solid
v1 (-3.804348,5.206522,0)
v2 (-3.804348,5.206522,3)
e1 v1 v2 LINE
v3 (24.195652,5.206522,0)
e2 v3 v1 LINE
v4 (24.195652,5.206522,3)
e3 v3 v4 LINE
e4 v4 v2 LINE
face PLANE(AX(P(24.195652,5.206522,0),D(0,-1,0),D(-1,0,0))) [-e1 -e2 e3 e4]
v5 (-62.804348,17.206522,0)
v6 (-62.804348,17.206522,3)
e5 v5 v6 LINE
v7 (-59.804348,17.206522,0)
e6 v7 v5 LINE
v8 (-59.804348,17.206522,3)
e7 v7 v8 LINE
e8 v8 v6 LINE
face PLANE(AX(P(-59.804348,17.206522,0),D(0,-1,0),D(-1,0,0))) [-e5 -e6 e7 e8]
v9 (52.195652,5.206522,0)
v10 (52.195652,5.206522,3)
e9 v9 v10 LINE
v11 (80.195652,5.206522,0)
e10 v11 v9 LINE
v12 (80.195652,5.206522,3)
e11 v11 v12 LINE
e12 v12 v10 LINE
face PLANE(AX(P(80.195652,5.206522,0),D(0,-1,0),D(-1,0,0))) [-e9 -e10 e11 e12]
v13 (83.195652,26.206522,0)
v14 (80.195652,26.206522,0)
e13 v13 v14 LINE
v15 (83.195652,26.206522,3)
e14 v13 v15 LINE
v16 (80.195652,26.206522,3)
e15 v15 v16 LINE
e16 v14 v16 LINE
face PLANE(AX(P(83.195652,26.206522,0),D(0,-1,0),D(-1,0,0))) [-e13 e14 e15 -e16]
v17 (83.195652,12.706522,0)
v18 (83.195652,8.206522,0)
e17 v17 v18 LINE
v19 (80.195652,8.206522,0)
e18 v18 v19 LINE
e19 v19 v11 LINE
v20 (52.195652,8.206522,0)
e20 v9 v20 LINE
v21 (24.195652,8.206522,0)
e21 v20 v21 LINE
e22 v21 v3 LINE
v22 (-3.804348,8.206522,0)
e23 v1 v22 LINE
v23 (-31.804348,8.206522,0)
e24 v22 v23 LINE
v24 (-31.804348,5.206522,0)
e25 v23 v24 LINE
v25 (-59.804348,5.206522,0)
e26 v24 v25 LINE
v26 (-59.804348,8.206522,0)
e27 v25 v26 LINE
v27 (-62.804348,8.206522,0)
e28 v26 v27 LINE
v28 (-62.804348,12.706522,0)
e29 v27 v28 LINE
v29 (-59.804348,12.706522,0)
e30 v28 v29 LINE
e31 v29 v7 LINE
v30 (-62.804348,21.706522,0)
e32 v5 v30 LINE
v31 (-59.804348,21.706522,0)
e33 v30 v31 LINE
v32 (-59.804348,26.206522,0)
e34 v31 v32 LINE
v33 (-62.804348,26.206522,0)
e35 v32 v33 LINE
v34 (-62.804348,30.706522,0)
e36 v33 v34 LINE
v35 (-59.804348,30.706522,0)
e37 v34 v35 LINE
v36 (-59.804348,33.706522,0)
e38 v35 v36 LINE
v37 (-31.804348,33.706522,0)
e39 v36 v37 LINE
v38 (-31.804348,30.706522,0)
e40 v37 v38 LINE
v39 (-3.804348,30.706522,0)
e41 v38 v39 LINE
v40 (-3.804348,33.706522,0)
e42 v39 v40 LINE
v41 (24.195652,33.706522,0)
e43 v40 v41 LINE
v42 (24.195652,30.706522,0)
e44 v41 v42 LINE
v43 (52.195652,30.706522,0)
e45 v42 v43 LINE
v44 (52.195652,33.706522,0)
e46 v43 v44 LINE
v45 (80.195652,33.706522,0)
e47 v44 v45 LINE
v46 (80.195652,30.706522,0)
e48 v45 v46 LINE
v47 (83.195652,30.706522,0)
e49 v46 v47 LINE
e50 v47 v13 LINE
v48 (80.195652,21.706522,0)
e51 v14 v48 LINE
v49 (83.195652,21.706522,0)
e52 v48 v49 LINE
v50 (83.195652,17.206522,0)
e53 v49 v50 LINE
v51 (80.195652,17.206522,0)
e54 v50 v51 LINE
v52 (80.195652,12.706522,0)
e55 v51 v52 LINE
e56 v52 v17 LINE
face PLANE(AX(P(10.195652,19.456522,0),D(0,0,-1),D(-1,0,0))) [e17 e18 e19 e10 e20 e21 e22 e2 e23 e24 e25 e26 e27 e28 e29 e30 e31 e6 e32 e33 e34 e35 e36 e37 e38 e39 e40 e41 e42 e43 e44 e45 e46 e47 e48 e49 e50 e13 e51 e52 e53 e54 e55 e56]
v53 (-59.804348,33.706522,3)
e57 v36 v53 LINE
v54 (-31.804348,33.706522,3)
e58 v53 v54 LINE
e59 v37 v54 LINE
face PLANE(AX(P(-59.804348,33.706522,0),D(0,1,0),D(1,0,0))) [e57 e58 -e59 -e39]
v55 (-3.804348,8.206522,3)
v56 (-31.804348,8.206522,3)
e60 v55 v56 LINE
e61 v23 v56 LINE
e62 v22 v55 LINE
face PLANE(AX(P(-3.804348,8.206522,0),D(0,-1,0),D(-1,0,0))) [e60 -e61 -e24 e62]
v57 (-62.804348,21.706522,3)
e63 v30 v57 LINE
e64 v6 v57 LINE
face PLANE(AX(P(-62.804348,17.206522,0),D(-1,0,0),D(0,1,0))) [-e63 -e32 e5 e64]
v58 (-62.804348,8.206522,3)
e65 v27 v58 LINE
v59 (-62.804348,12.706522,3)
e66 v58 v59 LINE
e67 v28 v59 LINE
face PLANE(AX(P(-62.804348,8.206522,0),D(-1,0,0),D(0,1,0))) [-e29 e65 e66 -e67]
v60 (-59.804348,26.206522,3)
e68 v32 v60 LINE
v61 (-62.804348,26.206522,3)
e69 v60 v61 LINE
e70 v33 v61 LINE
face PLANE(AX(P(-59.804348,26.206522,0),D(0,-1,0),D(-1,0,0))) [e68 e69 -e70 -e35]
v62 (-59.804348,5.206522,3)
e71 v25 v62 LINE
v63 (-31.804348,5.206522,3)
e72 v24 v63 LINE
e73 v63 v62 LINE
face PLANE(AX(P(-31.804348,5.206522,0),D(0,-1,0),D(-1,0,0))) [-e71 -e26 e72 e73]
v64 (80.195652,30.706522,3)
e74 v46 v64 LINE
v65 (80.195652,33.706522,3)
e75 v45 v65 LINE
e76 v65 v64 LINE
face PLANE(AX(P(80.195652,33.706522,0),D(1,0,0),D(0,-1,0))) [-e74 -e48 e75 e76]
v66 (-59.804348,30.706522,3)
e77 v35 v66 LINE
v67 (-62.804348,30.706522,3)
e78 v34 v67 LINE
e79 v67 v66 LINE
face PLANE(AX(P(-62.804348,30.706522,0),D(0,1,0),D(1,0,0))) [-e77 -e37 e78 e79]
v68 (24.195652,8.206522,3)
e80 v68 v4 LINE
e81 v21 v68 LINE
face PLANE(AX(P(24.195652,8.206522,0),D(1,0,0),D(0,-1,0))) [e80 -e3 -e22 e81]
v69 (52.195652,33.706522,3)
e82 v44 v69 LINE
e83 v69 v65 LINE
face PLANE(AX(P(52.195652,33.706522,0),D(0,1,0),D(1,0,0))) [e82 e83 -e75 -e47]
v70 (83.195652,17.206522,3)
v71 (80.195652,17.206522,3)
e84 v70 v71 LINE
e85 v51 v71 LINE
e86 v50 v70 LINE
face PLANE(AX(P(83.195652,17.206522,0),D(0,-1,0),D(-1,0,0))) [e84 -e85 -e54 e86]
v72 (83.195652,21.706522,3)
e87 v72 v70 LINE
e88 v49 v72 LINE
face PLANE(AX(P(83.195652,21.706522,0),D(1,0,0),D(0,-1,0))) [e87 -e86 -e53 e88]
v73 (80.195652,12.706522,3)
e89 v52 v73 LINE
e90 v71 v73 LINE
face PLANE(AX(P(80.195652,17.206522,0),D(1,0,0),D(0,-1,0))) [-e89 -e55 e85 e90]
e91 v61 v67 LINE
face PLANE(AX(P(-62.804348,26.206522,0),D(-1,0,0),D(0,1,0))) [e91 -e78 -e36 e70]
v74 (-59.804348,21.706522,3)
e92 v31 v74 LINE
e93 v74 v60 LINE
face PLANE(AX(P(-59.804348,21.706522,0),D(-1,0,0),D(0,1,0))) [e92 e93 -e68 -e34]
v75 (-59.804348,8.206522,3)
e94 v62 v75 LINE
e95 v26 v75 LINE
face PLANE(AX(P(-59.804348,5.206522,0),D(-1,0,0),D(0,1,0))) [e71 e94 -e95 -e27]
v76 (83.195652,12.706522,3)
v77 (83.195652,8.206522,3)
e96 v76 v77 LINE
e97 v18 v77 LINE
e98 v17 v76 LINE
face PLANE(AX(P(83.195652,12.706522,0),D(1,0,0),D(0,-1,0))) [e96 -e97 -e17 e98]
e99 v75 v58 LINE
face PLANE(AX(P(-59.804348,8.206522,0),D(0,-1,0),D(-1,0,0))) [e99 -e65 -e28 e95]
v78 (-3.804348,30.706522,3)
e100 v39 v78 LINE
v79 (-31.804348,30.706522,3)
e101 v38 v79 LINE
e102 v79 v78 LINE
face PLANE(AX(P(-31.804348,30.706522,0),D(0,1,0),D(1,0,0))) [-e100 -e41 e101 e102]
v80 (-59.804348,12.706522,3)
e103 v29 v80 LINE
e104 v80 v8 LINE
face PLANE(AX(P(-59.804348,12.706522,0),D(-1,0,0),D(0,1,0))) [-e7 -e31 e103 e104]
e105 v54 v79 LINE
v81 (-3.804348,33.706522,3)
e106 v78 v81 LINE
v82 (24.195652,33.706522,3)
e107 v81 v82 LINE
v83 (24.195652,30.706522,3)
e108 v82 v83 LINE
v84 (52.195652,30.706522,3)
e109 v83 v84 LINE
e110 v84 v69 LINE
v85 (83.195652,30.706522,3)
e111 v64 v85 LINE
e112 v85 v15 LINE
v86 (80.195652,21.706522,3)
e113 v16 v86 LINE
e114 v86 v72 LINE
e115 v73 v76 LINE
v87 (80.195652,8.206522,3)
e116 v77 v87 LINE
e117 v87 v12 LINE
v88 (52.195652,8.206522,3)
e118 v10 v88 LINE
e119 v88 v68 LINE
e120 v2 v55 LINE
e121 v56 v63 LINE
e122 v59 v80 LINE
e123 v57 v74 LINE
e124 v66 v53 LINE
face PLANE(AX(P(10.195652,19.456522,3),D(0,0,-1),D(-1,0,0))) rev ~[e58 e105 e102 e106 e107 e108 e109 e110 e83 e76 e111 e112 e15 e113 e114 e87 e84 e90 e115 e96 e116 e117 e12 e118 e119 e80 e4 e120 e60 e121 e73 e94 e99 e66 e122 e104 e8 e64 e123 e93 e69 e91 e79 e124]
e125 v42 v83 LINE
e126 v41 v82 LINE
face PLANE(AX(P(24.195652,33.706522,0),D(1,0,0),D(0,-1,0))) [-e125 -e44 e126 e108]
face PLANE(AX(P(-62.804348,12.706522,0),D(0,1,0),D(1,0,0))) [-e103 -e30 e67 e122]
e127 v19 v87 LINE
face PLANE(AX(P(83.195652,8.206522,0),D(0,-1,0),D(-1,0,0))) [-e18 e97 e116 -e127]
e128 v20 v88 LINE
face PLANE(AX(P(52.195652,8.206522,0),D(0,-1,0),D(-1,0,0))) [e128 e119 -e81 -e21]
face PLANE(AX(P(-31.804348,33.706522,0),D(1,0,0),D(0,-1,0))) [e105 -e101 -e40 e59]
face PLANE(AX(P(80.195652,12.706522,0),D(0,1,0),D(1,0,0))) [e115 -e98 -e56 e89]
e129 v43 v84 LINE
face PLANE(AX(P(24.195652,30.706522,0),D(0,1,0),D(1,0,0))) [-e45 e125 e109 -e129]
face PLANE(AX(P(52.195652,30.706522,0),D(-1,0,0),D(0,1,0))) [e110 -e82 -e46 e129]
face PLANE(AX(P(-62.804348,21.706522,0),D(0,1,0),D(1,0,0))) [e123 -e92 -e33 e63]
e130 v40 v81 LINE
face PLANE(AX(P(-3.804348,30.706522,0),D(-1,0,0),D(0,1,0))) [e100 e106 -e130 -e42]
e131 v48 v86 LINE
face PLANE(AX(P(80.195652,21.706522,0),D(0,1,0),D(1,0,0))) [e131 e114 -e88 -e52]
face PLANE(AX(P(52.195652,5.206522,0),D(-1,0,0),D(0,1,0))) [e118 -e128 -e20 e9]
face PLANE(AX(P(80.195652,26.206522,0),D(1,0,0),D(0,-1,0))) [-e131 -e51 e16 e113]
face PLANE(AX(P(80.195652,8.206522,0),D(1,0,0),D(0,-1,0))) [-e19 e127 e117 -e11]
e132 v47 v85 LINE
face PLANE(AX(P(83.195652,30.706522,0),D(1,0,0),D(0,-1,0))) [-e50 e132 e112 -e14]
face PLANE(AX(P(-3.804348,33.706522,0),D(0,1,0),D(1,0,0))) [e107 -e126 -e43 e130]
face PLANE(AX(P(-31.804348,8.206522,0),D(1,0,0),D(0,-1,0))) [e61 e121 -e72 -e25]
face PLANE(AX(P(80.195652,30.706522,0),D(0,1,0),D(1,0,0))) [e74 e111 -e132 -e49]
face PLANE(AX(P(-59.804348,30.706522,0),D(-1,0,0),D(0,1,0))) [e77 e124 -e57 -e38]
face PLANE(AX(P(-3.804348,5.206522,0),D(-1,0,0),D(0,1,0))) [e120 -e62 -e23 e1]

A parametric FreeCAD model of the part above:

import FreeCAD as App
import Part
import Sketcher


def add_polygon(sketch, points):
    """Adds a closed chain of lines whose ends are joined by coincident constraints."""
    first, n = sketch.GeometryCount, len(points)
    for a, b in zip(points, points[1:] + points[:1]):
        sketch.addGeometry(Part.LineSegment(App.Vector(*a, 0), App.Vector(*b, 0)), False)
    for i in range(n):
        sketch.addConstraint(Sketcher.Constraint("Coincident", first + i, 2, first + (i + 1) % n, 1))

doc = App.newDocument("Part")
params = doc.addObject("Spreadsheet::Sheet", "Params")
for row, (alias, value) in enumerate([
    ("sketch1_width", "3 mm"),
    ("sketch1_width2", "28 mm"),
    ("sketch1_height", "4.5 mm"),
    ("pad1_length", "3 mm"),
], start=1):
    params.set(f"A{row}", alias)
    params.set(f"B{row}", "=" + value)
    params.setAlias(f"B{row}", alias)

body = doc.addObject("PartDesign::Body", "Body")

# Sketch on XY plane
sketch1 = body.newObject("Sketcher::SketchObject", "Sketch")
sketch1.AttachmentSupport = (doc.getObject("XY_Plane"), [""])
sketch1.MapMode = "FlatFace"
add_polygon(sketch1, [(-59.8, 33.7), (-59.8, 30.7), (-62.8, 30.7), (-62.8, 26.2), (-59.8, 26.2), (-59.8, 21.7), (-62.8, 21.7), (-62.8, 17.2), (-59.8, 17.2), (-59.8, 12.7), (-62.8, 12.7), (-62.8, 8.2), (-59.8, 8.2), (-59.8, 5.2), (-31.8, 5.2), (-31.8, 8.2), (-3.8, 8.2), (-3.8, 5.2), (24.2, 5.2), (24.2, 8.2), (52.2, 8.2), (52.2, 5.2), (80.2, 5.2), (80.2, 8.2), (83.2, 8.2), (83.2, 12.7), (80.2, 12.7), (80.2, 17.2), (83.2, 17.2), (83.2, 21.7), (80.2, 21.7), (80.2, 26.2), (83.2, 26.2), (83.2, 30.7), (80.2, 30.7), (80.2, 33.7), (52.2, 33.7), (52.2, 30.7), (24.2, 30.7), (24.2, 33.7), (-3.8, 33.7), (-3.8, 30.7), (-31.8, 30.7), (-31.8, 33.7)])  # lines 0-43
sketch1.addConstraint(Sketcher.Constraint("Vertical", 0))
sketch1.addConstraint(Sketcher.Constraint("Horizontal", 1))
sketch1.addConstraint(Sketcher.Constraint("Vertical", 2))
sketch1.addConstraint(Sketcher.Constraint("Horizontal", 3))
sketch1.addConstraint(Sketcher.Constraint("Vertical", 4))
sketch1.addConstraint(Sketcher.Constraint("Horizontal", 5))
sketch1.addConstraint(Sketcher.Constraint("Vertical", 6))
sketch1.addConstraint(Sketcher.Constraint("Horizontal", 7))
sketch1.addConstraint(Sketcher.Constraint("Vertical", 8))
sketch1.addConstraint(Sketcher.Constraint("Horizontal", 9))
sketch1.addConstraint(Sketcher.Constraint("Vertical", 10))
sketch1.addConstraint(Sketcher.Constraint("Horizontal", 11))
sketch1.addConstraint(Sketcher.Constraint("Vertical", 12))
sketch1.addConstraint(Sketcher.Constraint("Horizontal", 13))
sketch1.addConstraint(Sketcher.Constraint("Vertical", 14))
sketch1.addConstraint(Sketcher.Constraint("Horizontal", 15))
sketch1.addConstraint(Sketcher.Constraint("Vertical", 16))
sketch1.addConstraint(Sketcher.Constraint("Horizontal", 17))
sketch1.addConstraint(Sketcher.Constraint("Vertical", 18))
sketch1.addConstraint(Sketcher.Constraint("Horizontal", 19))
sketch1.addConstraint(Sketcher.Constraint("Vertical", 20))
sketch1.addConstraint(Sketcher.Constraint("Horizontal", 21))
sketch1.addConstraint(Sketcher.Constraint("Vertical", 22))
sketch1.addConstraint(Sketcher.Constraint("Horizontal", 23))
sketch1.addConstraint(Sketcher.Constraint("Vertical", 24))
sketch1.addConstraint(Sketcher.Constraint("Horizontal", 25))
sketch1.addConstraint(Sketcher.Constraint("Vertical", 26))
sketch1.addConstraint(Sketcher.Constraint("Horizontal", 27))
sketch1.addConstraint(Sketcher.Constraint("Vertical", 28))
sketch1.addConstraint(Sketcher.Constraint("Horizontal", 29))
sketch1.addConstraint(Sketcher.Constraint("Vertical", 30))
sketch1.addConstraint(Sketcher.Constraint("Horizontal", 31))
sketch1.addConstraint(Sketcher.Constraint("Vertical", 32))
sketch1.addConstraint(Sketcher.Constraint("Horizontal", 33))
sketch1.addConstraint(Sketcher.Constraint("Vertical", 34))
sketch1.addConstraint(Sketcher.Constraint("Horizontal", 35))
sketch1.addConstraint(Sketcher.Constraint("Vertical", 36))
sketch1.addConstraint(Sketcher.Constraint("Horizontal", 37))
sketch1.addConstraint(Sketcher.Constraint("Vertical", 38))
sketch1.addConstraint(Sketcher.Constraint("Horizontal", 39))
sketch1.addConstraint(Sketcher.Constraint("Vertical", 40))
sketch1.addConstraint(Sketcher.Constraint("Horizontal", 41))
sketch1.addConstraint(Sketcher.Constraint("Vertical", 42))
sketch1.addConstraint(Sketcher.Constraint("Horizontal", 43))
sketch1.addConstraint(Sketcher.Constraint("Horizontal", 11, 2, 14, 2))
sketch1.addConstraint(Sketcher.Constraint("Horizontal", 13, 2, 16, 2))
sketch1.addConstraint(Sketcher.Constraint("Horizontal", 15, 2, 18, 2))
sketch1.addConstraint(Sketcher.Constraint("Horizontal", 17, 2, 20, 2))
sketch1.addConstraint(Sketcher.Constraint("Horizontal", 19, 2, 22, 2))
sketch1.addConstraint(Sketcher.Constraint("Horizontal", 9, 2, 24, 2))
sketch1.addConstraint(Sketcher.Constraint("Horizontal", 7, 2, 26, 2))
sketch1.addConstraint(Sketcher.Constraint("Horizontal", 5, 2, 28, 2))
sketch1.addConstraint(Sketcher.Constraint("Horizontal", 3, 2, 30, 2))
sketch1.addConstraint(Sketcher.Constraint("Horizontal", 1, 2, 32, 2))
sketch1.addConstraint(Sketcher.Constraint("Horizontal", 33, 2, 36, 2))
sketch1.addConstraint(Sketcher.Constraint("Horizontal", 35, 2, 38, 2))
sketch1.addConstraint(Sketcher.Constraint("Horizontal", 37, 2, 40, 2))
sketch1.addConstraint(Sketcher.Constraint("Horizontal", 39, 2, 42, 2))
sketch1.addConstraint(Sketcher.Constraint("Vertical", 0, 2, 3, 2))
sketch1.addConstraint(Sketcher.Constraint("Vertical", 2, 2, 5, 2))
sketch1.addConstraint(Sketcher.Constraint("Vertical", 4, 2, 7, 2))
sketch1.addConstraint(Sketcher.Constraint("Vertical", 6, 2, 9, 2))
sketch1.addConstraint(Sketcher.Constraint("Vertical", 8, 2, 11, 2))
sketch1.addConstraint(Sketcher.Constraint("Vertical", 22, 2, 25, 2))
sketch1.addConstraint(Sketcher.Constraint("Vertical", 24, 2, 27, 2))
sketch1.addConstraint(Sketcher.Constraint("Vertical", 26, 2, 29, 2))
sketch1.addConstraint(Sketcher.Constraint("Vertical", 28, 2, 31, 2))
sketch1.addConstraint(Sketcher.Constraint("Vertical", 30, 2, 33, 2))
sketch1.addConstraint(Sketcher.Constraint("Vertical", 20, 2, 35, 2))
sketch1.addConstraint(Sketcher.Constraint("Vertical", 18, 2, 37, 2))
sketch1.addConstraint(Sketcher.Constraint("Vertical", 16, 2, 39, 2))
sketch1.addConstraint(Sketcher.Constraint("Vertical", 14, 2, 41, 2))
sketch1.addConstraint(Sketcher.Constraint("Equal", 13, 15))
sketch1.addConstraint(Sketcher.Constraint("Equal", 15, 17))
sketch1.addConstraint(Sketcher.Constraint("Equal", 17, 19))
sketch1.addConstraint(Sketcher.Constraint("Equal", 19, 21))
sketch1.addConstraint(Sketcher.Constraint("Equal", 11, 23))
sketch1.addConstraint(Sketcher.Constraint("Equal", 33, 0))
sketch1.addConstraint(Sketcher.Constraint("Equal", 2, 4))
sketch1.addConstraint(Sketcher.Constraint("Equal", 4, 6))
sketch1.addConstraint(Sketcher.Constraint("Equal", 6, 8))
sketch1.addConstraint(Sketcher.Constraint("Equal", 8, 10))
sketch1.addConstraint(Sketcher.Constraint("Equal", 0, 12))
sketch1.addConstraint(Sketcher.Constraint("DistanceX", 1, 2, 1, 1, 3.0))
sketch1.addConstraint(Sketcher.Constraint("DistanceX", 13, 1, 13, 2, 28.0))
sketch1.addConstraint(Sketcher.Constraint("DistanceY", 2, 2, 2, 1, 4.5))
sketch1.addConstraint(Sketcher.Constraint("DistanceY", -1, 1, 0, 2, 30.706522))
sketch1.addConstraint(Sketcher.Constraint("DistanceX", 0, 2, -1, 1, 59.804348))
sketch1.setExpression("Constraints[127]", "Params.sketch1_width")
sketch1.setExpression("Constraints[128]", "Params.sketch1_width2")
sketch1.setExpression("Constraints[129]", "Params.sketch1_height")
pad1 = body.newObject("PartDesign::Pad", "Pad")
pad1.Profile = sketch1
pad1.setExpression("Length", "Params.pad1_length")

doc.recompute()
